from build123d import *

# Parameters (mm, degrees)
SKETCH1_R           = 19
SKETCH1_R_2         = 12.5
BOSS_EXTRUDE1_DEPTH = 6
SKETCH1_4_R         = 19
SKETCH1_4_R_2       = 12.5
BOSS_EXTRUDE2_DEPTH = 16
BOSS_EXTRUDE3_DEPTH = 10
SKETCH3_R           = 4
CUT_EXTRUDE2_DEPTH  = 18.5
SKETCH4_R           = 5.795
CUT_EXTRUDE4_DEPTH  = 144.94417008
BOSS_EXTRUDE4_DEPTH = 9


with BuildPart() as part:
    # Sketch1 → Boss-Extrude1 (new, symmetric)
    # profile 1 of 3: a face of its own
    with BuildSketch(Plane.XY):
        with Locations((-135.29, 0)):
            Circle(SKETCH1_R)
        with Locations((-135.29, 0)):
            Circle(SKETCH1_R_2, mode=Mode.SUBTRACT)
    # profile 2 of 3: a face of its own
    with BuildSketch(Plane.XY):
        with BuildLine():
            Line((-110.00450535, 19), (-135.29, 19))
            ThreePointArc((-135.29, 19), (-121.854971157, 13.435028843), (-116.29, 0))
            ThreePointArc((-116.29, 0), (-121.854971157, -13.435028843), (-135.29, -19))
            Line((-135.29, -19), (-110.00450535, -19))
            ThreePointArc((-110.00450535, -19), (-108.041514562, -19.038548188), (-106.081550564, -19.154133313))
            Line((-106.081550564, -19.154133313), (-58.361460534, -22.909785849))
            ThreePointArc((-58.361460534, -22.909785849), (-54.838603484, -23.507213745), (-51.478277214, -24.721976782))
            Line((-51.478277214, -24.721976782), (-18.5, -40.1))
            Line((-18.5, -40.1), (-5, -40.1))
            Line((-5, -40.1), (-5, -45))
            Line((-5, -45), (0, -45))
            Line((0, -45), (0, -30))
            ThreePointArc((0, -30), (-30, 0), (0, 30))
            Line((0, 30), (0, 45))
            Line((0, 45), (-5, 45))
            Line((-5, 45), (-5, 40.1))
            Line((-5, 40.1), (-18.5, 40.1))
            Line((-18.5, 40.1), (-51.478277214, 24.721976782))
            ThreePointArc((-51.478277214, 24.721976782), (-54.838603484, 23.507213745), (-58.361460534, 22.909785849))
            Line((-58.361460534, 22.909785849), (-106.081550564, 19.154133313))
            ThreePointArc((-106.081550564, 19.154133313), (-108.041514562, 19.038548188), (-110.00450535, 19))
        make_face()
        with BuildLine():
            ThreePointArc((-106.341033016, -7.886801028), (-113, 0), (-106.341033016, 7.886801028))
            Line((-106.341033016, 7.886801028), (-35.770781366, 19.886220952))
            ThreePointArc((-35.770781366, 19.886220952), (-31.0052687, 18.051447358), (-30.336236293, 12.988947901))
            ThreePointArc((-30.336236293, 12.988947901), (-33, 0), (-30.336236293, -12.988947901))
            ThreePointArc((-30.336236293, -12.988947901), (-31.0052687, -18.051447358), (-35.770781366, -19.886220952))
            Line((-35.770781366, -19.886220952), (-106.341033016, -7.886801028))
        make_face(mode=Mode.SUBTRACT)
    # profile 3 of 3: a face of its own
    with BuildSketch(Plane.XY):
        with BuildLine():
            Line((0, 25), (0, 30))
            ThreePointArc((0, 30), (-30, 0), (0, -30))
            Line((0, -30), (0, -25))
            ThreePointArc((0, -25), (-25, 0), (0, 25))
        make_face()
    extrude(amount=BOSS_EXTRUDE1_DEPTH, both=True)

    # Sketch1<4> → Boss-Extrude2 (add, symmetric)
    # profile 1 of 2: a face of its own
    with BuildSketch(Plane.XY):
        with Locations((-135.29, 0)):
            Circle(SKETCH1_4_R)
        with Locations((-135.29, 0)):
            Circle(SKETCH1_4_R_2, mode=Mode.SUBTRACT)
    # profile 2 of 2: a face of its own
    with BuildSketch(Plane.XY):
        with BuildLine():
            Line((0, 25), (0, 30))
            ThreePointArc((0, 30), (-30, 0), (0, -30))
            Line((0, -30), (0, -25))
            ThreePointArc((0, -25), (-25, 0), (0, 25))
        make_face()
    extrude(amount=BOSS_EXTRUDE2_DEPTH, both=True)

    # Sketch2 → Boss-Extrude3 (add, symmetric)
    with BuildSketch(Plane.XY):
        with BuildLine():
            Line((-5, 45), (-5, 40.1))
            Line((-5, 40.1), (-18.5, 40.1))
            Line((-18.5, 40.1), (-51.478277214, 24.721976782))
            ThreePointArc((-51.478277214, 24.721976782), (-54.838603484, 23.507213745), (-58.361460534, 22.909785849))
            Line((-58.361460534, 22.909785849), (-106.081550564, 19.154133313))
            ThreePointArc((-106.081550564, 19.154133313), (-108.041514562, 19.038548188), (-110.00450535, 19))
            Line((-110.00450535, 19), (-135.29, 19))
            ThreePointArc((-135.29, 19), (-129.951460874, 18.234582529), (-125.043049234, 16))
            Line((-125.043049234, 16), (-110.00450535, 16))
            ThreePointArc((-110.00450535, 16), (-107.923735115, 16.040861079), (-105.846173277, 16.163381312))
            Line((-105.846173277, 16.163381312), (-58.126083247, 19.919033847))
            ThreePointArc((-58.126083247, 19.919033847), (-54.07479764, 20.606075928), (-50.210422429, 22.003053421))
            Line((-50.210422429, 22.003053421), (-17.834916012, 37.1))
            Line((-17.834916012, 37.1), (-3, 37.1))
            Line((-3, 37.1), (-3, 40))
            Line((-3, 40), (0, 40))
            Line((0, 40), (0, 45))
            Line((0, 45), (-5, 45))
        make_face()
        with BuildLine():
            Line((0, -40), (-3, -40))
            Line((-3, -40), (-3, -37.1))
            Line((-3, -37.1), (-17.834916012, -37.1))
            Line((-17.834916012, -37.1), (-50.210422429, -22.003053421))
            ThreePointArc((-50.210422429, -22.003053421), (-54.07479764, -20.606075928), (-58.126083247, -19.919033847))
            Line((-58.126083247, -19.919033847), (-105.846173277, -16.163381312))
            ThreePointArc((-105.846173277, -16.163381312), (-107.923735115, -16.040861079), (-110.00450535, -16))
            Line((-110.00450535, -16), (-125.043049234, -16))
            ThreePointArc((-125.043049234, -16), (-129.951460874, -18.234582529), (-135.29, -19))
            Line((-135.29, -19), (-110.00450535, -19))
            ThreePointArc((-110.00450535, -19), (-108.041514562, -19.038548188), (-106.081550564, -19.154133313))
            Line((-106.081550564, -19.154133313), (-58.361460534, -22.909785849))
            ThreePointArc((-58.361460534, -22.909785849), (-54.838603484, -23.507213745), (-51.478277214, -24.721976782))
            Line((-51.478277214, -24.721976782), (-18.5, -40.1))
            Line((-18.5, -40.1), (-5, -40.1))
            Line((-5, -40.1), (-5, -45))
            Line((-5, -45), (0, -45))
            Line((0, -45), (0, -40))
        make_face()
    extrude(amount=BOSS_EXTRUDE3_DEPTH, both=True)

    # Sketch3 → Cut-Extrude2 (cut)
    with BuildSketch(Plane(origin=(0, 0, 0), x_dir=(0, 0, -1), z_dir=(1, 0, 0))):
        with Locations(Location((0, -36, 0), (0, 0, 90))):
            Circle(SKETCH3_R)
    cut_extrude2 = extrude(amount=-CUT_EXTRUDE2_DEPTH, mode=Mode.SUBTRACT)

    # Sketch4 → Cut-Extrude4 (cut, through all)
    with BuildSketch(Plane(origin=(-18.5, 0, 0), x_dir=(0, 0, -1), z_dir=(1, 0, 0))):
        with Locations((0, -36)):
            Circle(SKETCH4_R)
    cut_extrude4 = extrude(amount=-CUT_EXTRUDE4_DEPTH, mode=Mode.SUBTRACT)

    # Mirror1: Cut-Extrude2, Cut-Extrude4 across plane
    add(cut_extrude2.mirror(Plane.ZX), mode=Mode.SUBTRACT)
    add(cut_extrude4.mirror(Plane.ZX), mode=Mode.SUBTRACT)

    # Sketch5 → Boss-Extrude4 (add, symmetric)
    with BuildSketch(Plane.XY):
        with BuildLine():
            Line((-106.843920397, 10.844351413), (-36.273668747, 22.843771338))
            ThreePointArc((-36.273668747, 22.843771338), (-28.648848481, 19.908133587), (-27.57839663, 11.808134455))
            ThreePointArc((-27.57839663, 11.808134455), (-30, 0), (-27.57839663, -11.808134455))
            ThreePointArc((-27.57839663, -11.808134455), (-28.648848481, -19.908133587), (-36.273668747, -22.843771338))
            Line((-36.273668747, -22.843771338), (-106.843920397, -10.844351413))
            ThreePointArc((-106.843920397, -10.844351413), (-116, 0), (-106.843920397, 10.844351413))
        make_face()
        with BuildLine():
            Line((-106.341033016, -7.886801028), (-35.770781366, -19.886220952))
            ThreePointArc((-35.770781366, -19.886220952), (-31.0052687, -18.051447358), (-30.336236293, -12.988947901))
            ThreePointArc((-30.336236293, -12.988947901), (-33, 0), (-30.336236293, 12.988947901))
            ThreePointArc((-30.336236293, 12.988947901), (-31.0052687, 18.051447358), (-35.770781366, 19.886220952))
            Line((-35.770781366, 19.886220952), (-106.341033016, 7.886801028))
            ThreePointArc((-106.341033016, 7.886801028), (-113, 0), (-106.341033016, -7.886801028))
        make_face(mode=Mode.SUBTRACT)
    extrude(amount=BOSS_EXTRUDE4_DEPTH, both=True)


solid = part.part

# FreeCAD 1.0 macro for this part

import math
import FreeCAD as App
import Part
import Sketcher
Q = App.Units.Quantity

doc = App.newDocument("Part")
body = doc.addObject("PartDesign::Body", "Body")

sketch1 = doc.addObject("Sketcher::SketchObject", "Sketch")
body.addObject(sketch1)
sketch1.AttachmentSupport = (doc.XY_Plane, [""])
sketch1.MapMode = "FlatFace"
sketch1.addGeometry([
    Part.ArcOfCircle(Part.Circle(App.Vector(-135.3, 0, 0), App.Vector(0, 0, 1), 19), math.radians(90), math.radians(270)),
    Part.LineSegment(App.Vector(-135.3, -19, 0), App.Vector(-110, -19, 0)),
    Part.ArcOfCircle(Part.Circle(App.Vector(-110, -69, 0), App.Vector(0, 0, 1), 50), math.radians(85.5), math.radians(90)),
    Part.LineSegment(App.Vector(-106.1, -19.2, 0), App.Vector(-58.4, -22.9, 0)),
    Part.ArcOfCircle(Part.Circle(App.Vector(-59.9, -42.8, 0), App.Vector(0, 0, 1), 20), math.radians(65), math.radians(86)),
    Part.LineSegment(App.Vector(-51.5, -24.7, 0), App.Vector(-18.5, -40.1, 0)),
    Part.LineSegment(App.Vector(-18.5, -40.1, 0), App.Vector(-5, -40.1, 0)),
    Part.LineSegment(App.Vector(-5, -40.1, 0), App.Vector(-5, -45, 0)),
    Part.LineSegment(App.Vector(-5, -45, 0), App.Vector(0, -45, 0)),
    Part.LineSegment(App.Vector(0, -45, 0), App.Vector(0, -25, 0)),
    Part.ArcOfCircle(Part.Circle(App.Vector(0, 0, 0), App.Vector(0, 0, 1), 25), math.radians(90), math.radians(270)),
    Part.LineSegment(App.Vector(0, 25, 0), App.Vector(0, 45, 0)),
    Part.LineSegment(App.Vector(0, 45, 0), App.Vector(-5, 45, 0)),
    Part.LineSegment(App.Vector(-5, 45, 0), App.Vector(-5, 40.1, 0)),
    Part.LineSegment(App.Vector(-5, 40.1, 0), App.Vector(-18.5, 40.1, 0)),
    Part.LineSegment(App.Vector(-18.5, 40.1, 0), App.Vector(-51.5, 24.7, 0)),
    Part.ArcOfCircle(Part.Circle(App.Vector(-59.9, 42.8, 0), App.Vector(0, 0, 1), 20), math.radians(-86), math.radians(-65)),
    Part.LineSegment(App.Vector(-58.4, 22.9, 0), App.Vector(-106.1, 19.2, 0)),
    Part.ArcOfCircle(Part.Circle(App.Vector(-110, 69, 0), App.Vector(0, 0, 1), 50), math.radians(-90), math.radians(-85.5)),
    Part.LineSegment(App.Vector(-110, 19, 0), App.Vector(-135.3, 19, 0)),
    Part.Circle(App.Vector(-135.3, 0, 0), App.Vector(0, 0, 1), 12.5),
    Part.ArcOfCircle(Part.Circle(App.Vector(-105, 0, 0), App.Vector(0, 0, 1), 8), math.radians(100), math.radians(260)),
    Part.LineSegment(App.Vector(-106.3, 7.9, 0), App.Vector(-35.8, 19.9, 0)),
    Part.ArcOfCircle(Part.Circle(App.Vector(-34.9, 15, 0), App.Vector(0, 0, 1), 5), math.radians(-23), math.radians(100)),
    Part.ArcOfCircle(Part.Circle(App.Vector(0, 0, 0), App.Vector(0, 0, 1), 33), math.radians(157), math.radians(203)),
    Part.ArcOfCircle(Part.Circle(App.Vector(-34.9, -15, 0), App.Vector(0, 0, 1), 5), math.radians(-100), math.radians(23)),
    Part.LineSegment(App.Vector(-35.8, -19.9, 0), App.Vector(-106.3, -7.9, 0)),
], False)
sketch1.addConstraint([
    Sketcher.Constraint("Tangent", 0, 2, 1, 1),
    Sketcher.Constraint("Tangent", 1, 2, 2, 2),
    Sketcher.Constraint("Tangent", 2, 1, 3, 1),
    Sketcher.Constraint("Tangent", 3, 2, 4, 2),
    Sketcher.Constraint("Tangent", 4, 1, 5, 1),
    Sketcher.Constraint("Coincident", 5, 2, 6, 1),
    Sketcher.Constraint("Coincident", 6, 2, 7, 1),
    Sketcher.Constraint("Coincident", 7, 2, 8, 1),
    Sketcher.Constraint("Coincident", 8, 2, 9, 1),
    Sketcher.Constraint("Coincident", 9, 2, 10, 2),
    Sketcher.Constraint("Coincident", 10, 1, 11, 1),
    Sketcher.Constraint("Coincident", 11, 2, 12, 1),
    Sketcher.Constraint("Coincident", 12, 2, 13, 1),
    Sketcher.Constraint("Coincident", 13, 2, 14, 1),
    Sketcher.Constraint("Coincident", 14, 2, 15, 1),
    Sketcher.Constraint("Tangent", 15, 2, 16, 2),
    Sketcher.Constraint("Tangent", 16, 1, 17, 1),
    Sketcher.Constraint("Tangent", 17, 2, 18, 2),
    Sketcher.Constraint("Tangent", 18, 1, 19, 1),
    Sketcher.Constraint("Tangent", 19, 2, 0, 1),
    Sketcher.Constraint("Tangent", 21, 1, 22, 1),
    Sketcher.Constraint("Tangent", 22, 2, 23, 2),
    Sketcher.Constraint("Tangent", 23, 1, 24, 1),
    Sketcher.Constraint("Tangent", 24, 2, 25, 2),
    Sketcher.Constraint("Tangent", 25, 1, 26, 1),
    Sketcher.Constraint("Tangent", 26, 2, 21, 2),
    Sketcher.Constraint("Horizontal", 1),
    Sketcher.Constraint("Horizontal", 6),
    Sketcher.Constraint("Vertical", 7),
    Sketcher.Constraint("Horizontal", 8),
    Sketcher.Constraint("Vertical", 9),
    Sketcher.Constraint("Vertical", 11),
    Sketcher.Constraint("Horizontal", 12),
    Sketcher.Constraint("Vertical", 13),
    Sketcher.Constraint("Horizontal", 14),
    Sketcher.Constraint("Horizontal", 19),
    Sketcher.Constraint("Coincident", 10, 3, -1, 1),
    Sketcher.Constraint("Coincident", 24, 3, -1, 1),
    Sketcher.Constraint("Coincident", 20, 3, 0, 3),
    Sketcher.Constraint("Equal", 4, 16),
    Sketcher.Constraint("Equal", 2, 18),
    Sketcher.Constraint("Equal", 23, 25),
    Sketcher.Constraint("Symmetric", 8, 2, 11, 2, -1, 1),
    Sketcher.Constraint("Symmetric", 4, 3, 16, 3, -1),
    Sketcher.Constraint("Symmetric", 2, 3, 18, 3, -1),
    Sketcher.Constraint("Symmetric", 6, 2, 13, 2, -1),
    Sketcher.Constraint("Symmetric", 22, 2, 25, 1, -1),
    Sketcher.Constraint("PointOnObject", 8, 2, -2),
    Sketcher.Constraint("Vertical", 5, 2, 14, 2),
    Sketcher.Constraint("Diameter", 20, Q("25 mm")),
    Sketcher.Constraint("Radius", 0, Q("19 mm")),
    Sketcher.Constraint("Radius", 2, Q("50 mm")),
    Sketcher.Constraint("Radius", 4, Q("20 mm")),
    Sketcher.Constraint("Radius", 10, Q("25 mm")),
    Sketcher.Constraint("Radius", 21, Q("8 mm")),
    Sketcher.Constraint("Radius", 23, Q("5 mm")),
    Sketcher.Constraint("Radius", 24, Q("33 mm")),
    Sketcher.Constraint("DistanceX", 8, 1, 8, 2, Q("5 mm")),
    Sketcher.Constraint("DistanceY", 9, 1, 9, 2, Q("20 mm")),
    Sketcher.Constraint("Angle", 5, Q("-25 deg")),
    Sketcher.Constraint("DistanceX", 6, 1, 6, 2, Q("13.5 mm")),
    Sketcher.Constraint("DistanceY", 7, 2, 7, 1, Q("4.9 mm")),
    Sketcher.Constraint("DistanceX", 21, 3, -1, 1, Q("105 mm")),
    Sketcher.Constraint("Angle", 3, Q("-4.5 deg")),
    Sketcher.Constraint("Angle", 22, Q("9.65 deg")),
    Sketcher.Constraint("DistanceX", 0, 3, -1, 1, Q("135.29 mm")),
    Sketcher.Constraint("Distance", 3, Q("47.86765 mm")),
])
pad1 = doc.addObject("PartDesign::Pad", "Pad")
body.addObject(pad1)
pad1.Profile = sketch1
pad1.Length = 12
pad1.Midplane = True

sketch2 = doc.addObject("Sketcher::SketchObject", "Sketch001")
body.addObject(sketch2)
sketch2.AttachmentSupport = (doc.XY_Plane, [""])
sketch2.MapMode = "FlatFace"
sketch2.addGeometry([
    Part.Circle(App.Vector(-135, 0, 0), App.Vector(0, 0, 1), 19),
    Part.Circle(App.Vector(-135, 0, 0), App.Vector(0, 0, 1), 12),
    Part.LineSegment(App.Vector(0, 25, 0), App.Vector(0, 30, 0)),
    Part.ArcOfCircle(Part.Circle(App.Vector(0, 0, 0), App.Vector(0, 0, 1), 30), math.radians(90), math.radians(270)),
    Part.LineSegment(App.Vector(0, -30, 0), App.Vector(0, -25, 0)),
    Part.ArcOfCircle(Part.Circle(App.Vector(0, 0, 0), App.Vector(0, 0, 1), 25), math.radians(90), math.radians(270)),
], False)
sketch2.addConstraint([
    Sketcher.Constraint("Coincident", 2, 2, 3, 1),
    Sketcher.Constraint("Coincident", 3, 2, 4, 1),
    Sketcher.Constraint("Coincident", 4, 2, 5, 2),
    Sketcher.Constraint("Coincident", 5, 1, 2, 1),
    Sketcher.Constraint("Vertical", 2),
    Sketcher.Constraint("Vertical", 4),
    Sketcher.Constraint("Coincident", 3, 3, -1, 1),
    Sketcher.Constraint("Coincident", 5, 3, -1, 1),
    Sketcher.Constraint("Coincident", 1, 3, 0, 3),
    Sketcher.Constraint("PointOnObject", 0, 3, -1),
    Sketcher.Constraint("PointOnObject", 2, 2, -2),
    Sketcher.Constraint("PointOnObject", 3, 2, -2),
    Sketcher.Constraint("Diameter", 0, Q("38 mm")),
    Sketcher.Constraint("Diameter", 1, Q("25 mm")),
    Sketcher.Constraint("Radius", 3, Q("30 mm")),
    Sketcher.Constraint("Radius", 5, Q("25 mm")),
    Sketcher.Constraint("DistanceX", 0, 3, -1, 1, Q("135.29 mm")),
])
pad2 = doc.addObject("PartDesign::Pad", "Pad001")
body.addObject(pad2)
pad2.Profile = sketch2
pad2.Length = 32
pad2.Midplane = True

sketch3 = doc.addObject("Sketcher::SketchObject", "Sketch002")
body.addObject(sketch3)
sketch3.AttachmentSupport = (doc.XY_Plane, [""])
sketch3.MapMode = "FlatFace"
sketch3.addGeometry([
    Part.LineSegment(App.Vector(-5, 45, 0), App.Vector(-5, 40.1, 0)),
    Part.LineSegment(App.Vector(-5, 40.1, 0), App.Vector(-18.5, 40.1, 0)),
    Part.LineSegment(App.Vector(-18.5, 40.1, 0), App.Vector(-51.5, 24.7, 0)),
    Part.ArcOfCircle(Part.Circle(App.Vector(-59.9, 42.8, 0), App.Vector(0, 0, 1), 20), math.radians(-86), math.radians(-65)),
    Part.LineSegment(App.Vector(-58.4, 22.9, 0), App.Vector(-106.1, 19.2, 0)),
    Part.ArcOfCircle(Part.Circle(App.Vector(-110, 69, 0), App.Vector(0, 0, 1), 50), math.radians(-90), math.radians(-85.5)),
    Part.LineSegment(App.Vector(-110, 19, 0), App.Vector(-135.3, 19, 0)),
    Part.ArcOfCircle(Part.Circle(App.Vector(-135.3, 0, 0), App.Vector(0, 0, 1), 19), math.radians(57), math.radians(90)),
    Part.LineSegment(App.Vector(-125, 16, 0), App.Vector(-110, 16, 0)),
    Part.ArcOfCircle(Part.Circle(App.Vector(-110, 69, 0), App.Vector(0, 0, 1), 53), math.radians(-90), math.radians(-85.5)),
    Part.LineSegment(App.Vector(-105.8, 16.2, 0), App.Vector(-58.1, 19.9, 0)),
    Part.ArcOfCircle(Part.Circle(App.Vector(-59.9, 42.8, 0), App.Vector(0, 0, 1), 23), math.radians(-85), math.radians(-65)),
    Part.LineSegment(App.Vector(-50.2, 22, 0), App.Vector(-17.8, 37.1, 0)),
    Part.LineSegment(App.Vector(-17.8, 37.1, 0), App.Vector(-3, 37.1, 0)),
    Part.LineSegment(App.Vector(-3, 37.1, 0), App.Vector(-3, 40, 0)),
    Part.LineSegment(App.Vector(-3, 40, 0), App.Vector(0, 40, 0)),
    Part.LineSegment(App.Vector(0, 40, 0), App.Vector(0, 45, 0)),
    Part.LineSegment(App.Vector(0, 45, 0), App.Vector(-5, 45, 0)),
    Part.LineSegment(App.Vector(0, -40, 0), App.Vector(-3, -40, 0)),
    Part.LineSegment(App.Vector(-3, -40, 0), App.Vector(-3, -37.1, 0)),
    Part.LineSegment(App.Vector(-3, -37.1, 0), App.Vector(-17.8, -37.1, 0)),
    Part.LineSegment(App.Vector(-17.8, -37.1, 0), App.Vector(-50.2, -22, 0)),
    Part.ArcOfCircle(Part.Circle(App.Vector(-59.9, -42.8, 0), App.Vector(0, 0, 1), 23), math.radians(65), math.radians(85)),
    Part.LineSegment(App.Vector(-58.1, -19.9, 0), App.Vector(-105.8, -16.2, 0)),
    Part.ArcOfCircle(Part.Circle(App.Vector(-110, -69, 0), App.Vector(0, 0, 1), 53), math.radians(85.5), math.radians(90)),
    Part.LineSegment(App.Vector(-110, -16, 0), App.Vector(-125, -16, 0)),
    Part.ArcOfCircle(Part.Circle(App.Vector(-135.3, 0, 0), App.Vector(0, 0, 1), 19), math.radians(-90), math.radians(-57)),
    Part.LineSegment(App.Vector(-135.3, -19, 0), App.Vector(-110, -19, 0)),
    Part.ArcOfCircle(Part.Circle(App.Vector(-110, -69, 0), App.Vector(0, 0, 1), 50), math.radians(85.5), math.radians(90)),
    Part.LineSegment(App.Vector(-106.1, -19.2, 0), App.Vector(-58.4, -22.9, 0)),
    Part.ArcOfCircle(Part.Circle(App.Vector(-59.9, -42.8, 0), App.Vector(0, 0, 1), 20), math.radians(65), math.radians(86)),
    Part.LineSegment(App.Vector(-51.5, -24.7, 0), App.Vector(-18.5, -40.1, 0)),
    Part.LineSegment(App.Vector(-18.5, -40.1, 0), App.Vector(-5, -40.1, 0)),
    Part.LineSegment(App.Vector(-5, -40.1, 0), App.Vector(-5, -45, 0)),
    Part.LineSegment(App.Vector(-5, -45, 0), App.Vector(0, -45, 0)),
    Part.LineSegment(App.Vector(0, -45, 0), App.Vector(0, -40, 0)),
], False)
sketch3.addConstraint([
    Sketcher.Constraint("Coincident", 0, 2, 1, 1),
    Sketcher.Constraint("Coincident", 1, 2, 2, 1),
    Sketcher.Constraint("Tangent", 2, 2, 3, 2),
    Sketcher.Constraint("Tangent", 3, 1, 4, 1),
    Sketcher.Constraint("Tangent", 4, 2, 5, 2),
    Sketcher.Constraint("Tangent", 5, 1, 6, 1),
    Sketcher.Constraint("Tangent", 6, 2, 7, 2),
    Sketcher.Constraint("Coincident", 7, 1, 8, 1),
    Sketcher.Constraint("Tangent", 8, 2, 9, 1),
    Sketcher.Constraint("Tangent", 9, 2, 10, 1),
    Sketcher.Constraint("Tangent", 10, 2, 11, 1),
    Sketcher.Constraint("Tangent", 11, 2, 12, 1),
    Sketcher.Constraint("Coincident", 12, 2, 13, 1),
    Sketcher.Constraint("Coincident", 13, 2, 14, 1),
    Sketcher.Constraint("Coincident", 14, 2, 15, 1),
    Sketcher.Constraint("Coincident", 15, 2, 16, 1),
    Sketcher.Constraint("Coincident", 16, 2, 17, 1),
    Sketcher.Constraint("Coincident", 17, 2, 0, 1),
    Sketcher.Constraint("Coincident", 18, 2, 19, 1),
    Sketcher.Constraint("Coincident", 19, 2, 20, 1),
    Sketcher.Constraint("Coincident", 20, 2, 21, 1),
    Sketcher.Constraint("Tangent", 21, 2, 22, 1),
    Sketcher.Constraint("Tangent", 22, 2, 23, 1),
    Sketcher.Constraint("Tangent", 23, 2, 24, 1),
    Sketcher.Constraint("Tangent", 24, 2, 25, 1),
    Sketcher.Constraint("Coincident", 25, 2, 26, 2),
    Sketcher.Constraint("Tangent", 26, 1, 27, 1),
    Sketcher.Constraint("Tangent", 27, 2, 28, 2),
    Sketcher.Constraint("Tangent", 28, 1, 29, 1),
    Sketcher.Constraint("Tangent", 29, 2, 30, 2),
    Sketcher.Constraint("Tangent", 30, 1, 31, 1),
    Sketcher.Constraint("Coincident", 31, 2, 32, 1),
    Sketcher.Constraint("Coincident", 32, 2, 33, 1),
    Sketcher.Constraint("Coincident", 33, 2, 34, 1),
    Sketcher.Constraint("Coincident", 34, 2, 35, 1),
    Sketcher.Constraint("Coincident", 35, 2, 18, 1),
    Sketcher.Constraint("Vertical", 0),
    Sketcher.Constraint("Horizontal", 1),
    Sketcher.Constraint("Horizontal", 6),
    Sketcher.Constraint("Horizontal", 8),
    Sketcher.Constraint("Horizontal", 13),
    Sketcher.Constraint("Vertical", 14),
    Sketcher.Constraint("Horizontal", 15),
    Sketcher.Constraint("Vertical", 16),
    Sketcher.Constraint("Horizontal", 17),
    Sketcher.Constraint("Horizontal", 18),
    Sketcher.Constraint("Vertical", 19),
    Sketcher.Constraint("Horizontal", 20),
    Sketcher.Constraint("Horizontal", 25),
    Sketcher.Constraint("Horizontal", 27),
    Sketcher.Constraint("Horizontal", 32),
    Sketcher.Constraint("Vertical", 33),
    Sketcher.Constraint("Horizontal", 34),
    Sketcher.Constraint("Vertical", 35),
    Sketcher.Constraint("Coincident", 9, 3, 5, 3),
    Sketcher.Constraint("Coincident", 11, 3, 3, 3),
    Sketcher.Constraint("Coincident", 26, 3, 7, 3),
    Sketcher.Constraint("Coincident", 28, 3, 24, 3),
    Sketcher.Constraint("Coincident", 30, 3, 22, 3),
    Sketcher.Constraint("Equal", 11, 22),
    Sketcher.Constraint("Equal", 9, 24),
    Sketcher.Constraint("Equal", 7, 26),
    Sketcher.Constraint("Equal", 5, 28),
    Sketcher.Constraint("Equal", 3, 30),
    Sketcher.Constraint("Symmetric", 16, 2, 34, 2, -1, 1),
    Sketcher.Constraint("Symmetric", 3, 3, 22, 3, -1),
    Sketcher.Constraint("Symmetric", 5, 3, 24, 3, -1),
    Sketcher.Constraint("Symmetric", 14, 2, 18, 2, -1),
    Sketcher.Constraint("Symmetric", 12, 2, 20, 2, -1),
    Sketcher.Constraint("Symmetric", 1, 2, 31, 2, -1),
    Sketcher.Constraint("PointOnObject", 15, 2, -2),
    Sketcher.Constraint("Parallel", 4, 10),
    Sketcher.Constraint("Parallel", 2, 12),
    Sketcher.Constraint("Vertical", 17, 2, 32, 2),
    Sketcher.Constraint("Equal", 34, 16),
    Sketcher.Constraint("Radius", 3, Q("20 mm")),
    Sketcher.Constraint("Radius", 5, Q("50 mm")),
    Sketcher.Constraint("Radius", 7, Q("19 mm")),
    Sketcher.Constraint("Radius", 9, Q("53 mm")),
    Sketcher.Constraint("DistanceX", 15, 1, 15, 2, Q("3 mm")),
    Sketcher.Constraint("DistanceX", 17, 2, 17, 1, Q("5 mm")),
    Sketcher.Constraint("Angle", 2, Q("-155 deg")),
    Sketcher.Constraint("DistanceX", 1, 2, 1, 1, Q("13.5 mm")),
    Sketcher.Constraint("DistanceY", 0, 2, 0, 1, Q("4.9 mm")),
    Sketcher.Constraint("DistanceY", 14, 1, 14, 2, Q("2.9 mm")),
    Sketcher.Constraint("DistanceY", -1, 1, 14, 2, Q("40 mm")),
    Sketcher.Constraint("Angle", 4, Q("-175.5 deg")),
    Sketcher.Constraint("DistanceX", 7, 3, -1, 1, Q("135.29 mm")),
    Sketcher.Constraint("DistanceX", 7, 1, 4, 2, Q("18.961499 mm")),
])
pad3 = doc.addObject("PartDesign::Pad", "Pad002")
body.addObject(pad3)
pad3.Profile = sketch3
pad3.Length = 20
pad3.Midplane = True

sketch4 = doc.addObject("Sketcher::SketchObject", "Sketch003")
body.addObject(sketch4)
sketch4.AttachmentSupport = (doc.YZ_Plane, [""])
sketch4.MapMode = "FlatFace"
sketch4.addGeometry(Part.Circle(App.Vector(-36, 0, 0), App.Vector(0, 0, 1), 4), False)
sketch4.addConstraint([
    Sketcher.Constraint("PointOnObject", 0, 3, -1),
    Sketcher.Constraint("Diameter", 0, Q("8 mm")),
    Sketcher.Constraint("DistanceX", 0, 3, -1, 1, Q("36 mm")),
])
pocket1 = doc.addObject("PartDesign::Pocket", "Pocket")
body.addObject(pocket1)
pocket1.Profile = sketch4
pocket1.Length = 18.5

sketch5 = doc.addObject("Sketcher::SketchObject", "Sketch004")
body.addObject(sketch5)
sketch5.AttachmentSupport = (doc.YZ_Plane, [""])
sketch5.MapMode = "FlatFace"
sketch5.AttachmentOffset = App.Placement(App.Vector(0, 0, -18.5), App.Rotation())
sketch5.addGeometry(Part.Circle(App.Vector(-36, 0, 0), App.Vector(0, 0, 1), 6), False)
sketch5.addConstraint([
    Sketcher.Constraint("PointOnObject", 0, 3, -1),
    Sketcher.Constraint("Diameter", 0, Q("11.59 mm")),
    Sketcher.Constraint("DistanceX", 0, 3, -1, 1, Q("36 mm")),
])
pocket2 = doc.addObject("PartDesign::Pocket", "Pocket001")
body.addObject(pocket2)
pocket2.Profile = sketch5
pocket2.Type = "ThroughAll"
doc.recompute()

mirrored = doc.addObject("PartDesign::Mirrored", "Mirrored")
body.addObject(mirrored)
mirrored.Originals = [pocket1, pocket2]
mirrored.MirrorPlane = (doc.XZ_Plane, [""])
body.Tip = mirrored

sketch6 = doc.addObject("Sketcher::SketchObject", "Sketch005")
body.addObject(sketch6)
sketch6.AttachmentSupport = (doc.XY_Plane, [""])
sketch6.MapMode = "FlatFace"
sketch6.addGeometry([
    Part.LineSegment(App.Vector(-36, 23, 0), App.Vector(-107, 11, 0)),
    Part.ArcOfCircle(Part.Circle(App.Vector(-105, 0, 0), App.Vector(0, 0, 1), 11), math.radians(100), math.radians(260)),
    Part.LineSegment(App.Vector(-107, -11, 0), App.Vector(-36, -23, 0)),
    Part.ArcOfCircle(Part.Circle(App.Vector(-35, -15, 0), App.Vector(0, 0, 1), 8), math.radians(-100), math.radians(23)),
    Part.ArcOfCircle(Part.Circle(App.Vector(0, 0, 0), App.Vector(0, 0, 1), 30), math.radians(157), math.radians(203)),
    Part.ArcOfCircle(Part.Circle(App.Vector(-35, 15, 0), App.Vector(0, 0, 1), 8), math.radians(-23), math.radians(100)),
    Part.ArcOfCircle(Part.Circle(App.Vector(-105, 0, 0), App.Vector(0, 0, 1), 8), math.radians(100), math.radians(260)),
    Part.LineSegment(App.Vector(-106, 8, 0), App.Vector(-36, 20, 0)),
    Part.ArcOfCircle(Part.Circle(App.Vector(-35, 15, 0), App.Vector(0, 0, 1), 5), math.radians(-23), math.radians(100)),
    Part.ArcOfCircle(Part.Circle(App.Vector(0, 0, 0), App.Vector(0, 0, 1), 33), math.radians(157), math.radians(203)),
    Part.ArcOfCircle(Part.Circle(App.Vector(-35, -15, 0), App.Vector(0, 0, 1), 5), math.radians(-100), math.radians(23)),
    Part.LineSegment(App.Vector(-36, -20, 0), App.Vector(-106, -8, 0)),
], False)
sketch6.addConstraint([
    Sketcher.Constraint("Tangent", 0, 2, 1, 1),
    Sketcher.Constraint("Tangent", 1, 2, 2, 1),
    Sketcher.Constraint("Tangent", 2, 2, 3, 1),
    Sketcher.Constraint("Tangent", 3, 2, 4, 2),
    Sketcher.Constraint("Tangent", 4, 1, 5, 1),
    Sketcher.Constraint("Tangent", 5, 2, 0, 1),
    Sketcher.Constraint("Tangent", 6, 1, 7, 1),
    Sketcher.Constraint("Tangent", 7, 2, 8, 2),
    Sketcher.Constraint("Tangent", 8, 1, 9, 1),
    Sketcher.Constraint("Tangent", 9, 2, 10, 2),
    Sketcher.Constraint("Tangent", 10, 1, 11, 1),
    Sketcher.Constraint("Tangent", 11, 2, 6, 2),
    Sketcher.Constraint("Coincident", 4, 3, -1, 1),
    Sketcher.Constraint("Coincident", 9, 3, -1, 1),
    Sketcher.Constraint("Coincident", 6, 3, 1, 3),
    Sketcher.Constraint("Coincident", 8, 3, 5, 3),
    Sketcher.Constraint("Coincident", 10, 3, 3, 3),
    Sketcher.Constraint("Equal", 3, 5),
    Sketcher.Constraint("Equal", 5, 6),
    Sketcher.Constraint("Symmetric", 0, 2, 1, 2, -1),
    Sketcher.Constraint("Parallel", 0, 7),
    Sketcher.Constraint("Radius", 1, Q("11 mm")),
    Sketcher.Constraint("Radius", 3, Q("8 mm")),
    Sketcher.Constraint("Radius", 4, Q("30 mm")),
    Sketcher.Constraint("DistanceX", 1, 3, -1, 1, Q("105 mm")),
    Sketcher.Constraint("Angle", 0, Q("-170.35 deg")),
])
pad4 = doc.addObject("PartDesign::Pad", "Pad003")
body.addObject(pad4)
pad4.Profile = sketch6
pad4.Length = 18
pad4.Midplane = True

doc.recompute()
